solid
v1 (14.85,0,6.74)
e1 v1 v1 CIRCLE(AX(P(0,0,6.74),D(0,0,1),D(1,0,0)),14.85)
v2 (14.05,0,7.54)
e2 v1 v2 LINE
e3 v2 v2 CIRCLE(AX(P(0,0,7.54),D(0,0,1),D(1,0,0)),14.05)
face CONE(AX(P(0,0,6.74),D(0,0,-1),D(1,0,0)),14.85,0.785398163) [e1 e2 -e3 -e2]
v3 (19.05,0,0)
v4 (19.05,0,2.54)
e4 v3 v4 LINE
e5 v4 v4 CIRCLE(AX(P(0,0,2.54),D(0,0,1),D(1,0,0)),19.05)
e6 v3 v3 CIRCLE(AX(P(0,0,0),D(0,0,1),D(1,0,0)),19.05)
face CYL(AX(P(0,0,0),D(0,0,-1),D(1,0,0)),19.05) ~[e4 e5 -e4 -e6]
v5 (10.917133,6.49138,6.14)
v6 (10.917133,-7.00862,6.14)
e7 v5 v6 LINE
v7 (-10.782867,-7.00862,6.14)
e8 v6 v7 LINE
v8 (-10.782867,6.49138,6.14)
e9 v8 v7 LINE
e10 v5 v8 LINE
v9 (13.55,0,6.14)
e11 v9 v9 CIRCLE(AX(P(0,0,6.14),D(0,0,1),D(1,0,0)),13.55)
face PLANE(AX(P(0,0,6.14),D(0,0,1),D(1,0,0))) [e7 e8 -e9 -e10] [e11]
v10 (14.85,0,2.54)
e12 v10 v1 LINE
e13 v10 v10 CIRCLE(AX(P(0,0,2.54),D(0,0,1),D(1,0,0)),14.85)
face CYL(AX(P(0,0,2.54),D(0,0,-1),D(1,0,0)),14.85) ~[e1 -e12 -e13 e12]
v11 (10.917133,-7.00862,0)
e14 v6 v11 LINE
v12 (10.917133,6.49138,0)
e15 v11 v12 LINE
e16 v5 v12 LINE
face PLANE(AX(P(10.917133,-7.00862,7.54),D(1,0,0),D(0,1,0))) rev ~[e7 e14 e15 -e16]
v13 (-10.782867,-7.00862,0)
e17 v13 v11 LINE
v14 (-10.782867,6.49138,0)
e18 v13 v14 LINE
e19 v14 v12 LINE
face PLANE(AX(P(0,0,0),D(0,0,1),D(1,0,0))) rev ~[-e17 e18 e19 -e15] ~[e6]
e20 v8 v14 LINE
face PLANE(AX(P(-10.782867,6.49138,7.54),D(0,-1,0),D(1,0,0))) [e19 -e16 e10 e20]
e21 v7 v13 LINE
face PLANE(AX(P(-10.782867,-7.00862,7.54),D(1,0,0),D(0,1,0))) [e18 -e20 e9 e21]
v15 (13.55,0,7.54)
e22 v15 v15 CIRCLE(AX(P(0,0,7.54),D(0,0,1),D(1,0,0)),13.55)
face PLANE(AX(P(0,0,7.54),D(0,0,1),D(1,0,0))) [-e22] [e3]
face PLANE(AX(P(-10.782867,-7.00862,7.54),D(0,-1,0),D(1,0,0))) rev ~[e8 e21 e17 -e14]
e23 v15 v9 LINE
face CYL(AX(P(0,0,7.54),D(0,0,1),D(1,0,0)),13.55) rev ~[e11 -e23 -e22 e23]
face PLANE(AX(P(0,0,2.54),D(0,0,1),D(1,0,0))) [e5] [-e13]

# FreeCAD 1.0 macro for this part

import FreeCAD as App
import Part
import Sketcher
from FreeCAD import Vector


def edges_at(feature, points):
    """Names of the edges that pass closest to the given points."""
    edges = feature.Shape.Edges
    near = lambda p: min(range(len(edges)), key=lambda i: edges[i].distToShape(Part.Vertex(*p))[0])
    return sorted({f"Edge{near(p) + 1}" for p in points})

doc = App.newDocument("Part")
body = doc.addObject("PartDesign::Body", "Body")

# Sketch on XY plane
sketch1 = doc.addObject("Sketcher::SketchObject", "Sketch")
body.addObject(sketch1)
sketch1.AttachmentSupport = (doc.XY_Plane, [""])
sketch1.MapMode = "FlatFace"
sketch1.addGeometry(Part.Circle(Vector(0, 0, 0), Vector(0, 0, 1), 19), False)
sketch1.addConstraint(Sketcher.Constraint("Coincident", 0, 3, -1, 1))
sketch1.addConstraint(Sketcher.Constraint("Diameter", 0, 38.1))
pad1 = doc.addObject("PartDesign::Pad", "Pad")
body.addObject(pad1)
pad1.Profile = sketch1
pad1.Length = 2.54

# Sketch on XY plane
sketch2 = doc.addObject("Sketcher::SketchObject", "Sketch001")
body.addObject(sketch2)
sketch2.AttachmentSupport = (doc.XY_Plane, [""])
sketch2.MapMode = "FlatFace"
sketch2.AttachmentOffset = App.Placement(Vector(0, 0, 2.54), App.Rotation())
sketch2.addGeometry(Part.Circle(Vector(0, 0, 0), Vector(0, 0, 1), 15), False)
sketch2.addConstraint(Sketcher.Constraint("Coincident", 0, 3, -1, 1))
sketch2.addConstraint(Sketcher.Constraint("Diameter", 0, 29.7))
pad2 = doc.addObject("PartDesign::Pad", "Pad001")
body.addObject(pad2)
pad2.Profile = sketch2
pad2.Length = 5

# Sketch on XY plane
sketch3 = doc.addObject("Sketcher::SketchObject", "Sketch002")
body.addObject(sketch3)
sketch3.AttachmentSupport = (doc.XY_Plane, [""])
sketch3.MapMode = "FlatFace"
sketch3.AttachmentOffset = App.Placement(Vector(0, 0, 7.54), App.Rotation())
sketch3.addGeometry(Part.LineSegment(Vector(-11, 6, 0), Vector(-11, -7, 0)), False)
sketch3.addGeometry(Part.LineSegment(Vector(-11, -7, 0), Vector(11, -7, 0)), False)
sketch3.addGeometry(Part.LineSegment(Vector(11, -7, 0), Vector(11, 6, 0)), False)
sketch3.addGeometry(Part.LineSegment(Vector(11, 6, 0), Vector(-11, 6, 0)), False)
sketch3.addConstraint(Sketcher.Constraint("Coincident", 0, 2, 1, 1))
sketch3.addConstraint(Sketcher.Constraint("Coincident", 1, 2, 2, 1))
sketch3.addConstraint(Sketcher.Constraint("Coincident", 2, 2, 3, 1))
sketch3.addConstraint(Sketcher.Constraint("Coincident", 3, 2, 0, 1))
sketch3.addConstraint(Sketcher.Constraint("Vertical", 0))
sketch3.addConstraint(Sketcher.Constraint("Horizontal", 1))
sketch3.addConstraint(Sketcher.Constraint("Vertical", 2))
sketch3.addConstraint(Sketcher.Constraint("Horizontal", 3))
sketch3.addConstraint(Sketcher.Constraint("DistanceX", 1, 1, 1, 2, 21.7))
sketch3.addConstraint(Sketcher.Constraint("DistanceY", 0, 2, 0, 1, 13.5))
sketch3.addConstraint(Sketcher.Constraint("DistanceY", 0, 2, -1, 1, 7.00862))
sketch3.addConstraint(Sketcher.Constraint("DistanceX", 0, 2, -1, 1, 10.782867))
pocket1 = doc.addObject("PartDesign::Pocket", "Pocket")
body.addObject(pocket1)
pocket1.Profile = sketch3
pocket1.Length = 10

# Sketch on XY plane
sketch4 = doc.addObject("Sketcher::SketchObject", "Sketch003")
body.addObject(sketch4)
sketch4.AttachmentSupport = (doc.XY_Plane, [""])
sketch4.MapMode = "FlatFace"
sketch4.AttachmentOffset = App.Placement(Vector(0, 0, 7.54), App.Rotation())
sketch4.addGeometry(Part.Circle(Vector(0, 0, 0), Vector(0, 0, 1), 14), False)
sketch4.addConstraint(Sketcher.Constraint("Coincident", 0, 3, -1, 1))
sketch4.addConstraint(Sketcher.Constraint("Diameter", 0, 27.1))
pocket2 = doc.addObject("PartDesign::Pocket", "Pocket001")
body.addObject(pocket2)
pocket2.Profile = sketch4
pocket2.Length = 1.4
doc.recompute()

chamfer = doc.addObject("PartDesign::Chamfer", "Chamfer")
body.addObject(chamfer)
chamfer.Base = (pocket2, edges_at(pocket2, [(-14.85, 0, 7.54)]))
chamfer.Size = 0.8

doc.recompute()
